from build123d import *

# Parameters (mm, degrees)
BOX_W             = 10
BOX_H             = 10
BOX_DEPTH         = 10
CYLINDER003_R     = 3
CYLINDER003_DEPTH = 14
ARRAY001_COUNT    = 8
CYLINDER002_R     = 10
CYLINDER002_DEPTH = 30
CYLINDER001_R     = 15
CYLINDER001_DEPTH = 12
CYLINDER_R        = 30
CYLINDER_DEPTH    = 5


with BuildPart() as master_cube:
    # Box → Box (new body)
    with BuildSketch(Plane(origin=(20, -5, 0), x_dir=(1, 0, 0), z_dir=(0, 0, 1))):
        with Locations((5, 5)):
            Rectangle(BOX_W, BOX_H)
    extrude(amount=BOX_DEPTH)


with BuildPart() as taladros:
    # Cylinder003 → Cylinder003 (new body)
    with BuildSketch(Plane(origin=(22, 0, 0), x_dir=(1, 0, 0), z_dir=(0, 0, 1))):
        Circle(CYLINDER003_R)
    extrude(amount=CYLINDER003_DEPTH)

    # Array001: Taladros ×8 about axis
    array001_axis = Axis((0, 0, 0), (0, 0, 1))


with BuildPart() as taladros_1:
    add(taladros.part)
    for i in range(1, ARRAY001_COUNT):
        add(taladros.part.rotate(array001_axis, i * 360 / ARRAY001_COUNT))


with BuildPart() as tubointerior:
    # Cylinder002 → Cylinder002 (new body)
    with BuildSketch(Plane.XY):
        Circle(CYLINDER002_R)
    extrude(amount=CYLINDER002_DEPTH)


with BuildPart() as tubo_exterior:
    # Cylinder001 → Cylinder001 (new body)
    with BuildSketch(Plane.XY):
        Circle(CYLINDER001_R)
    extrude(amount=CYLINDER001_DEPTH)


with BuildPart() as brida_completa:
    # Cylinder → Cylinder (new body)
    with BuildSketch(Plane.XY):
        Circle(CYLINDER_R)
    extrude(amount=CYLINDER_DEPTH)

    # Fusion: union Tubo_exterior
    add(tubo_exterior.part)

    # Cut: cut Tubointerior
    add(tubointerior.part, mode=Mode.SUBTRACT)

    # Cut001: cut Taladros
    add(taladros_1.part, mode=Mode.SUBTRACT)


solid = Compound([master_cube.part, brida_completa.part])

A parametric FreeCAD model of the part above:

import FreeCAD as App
import Part
import Sketcher
from FreeCAD import Vector
Q = App.Units.Quantity

doc = App.newDocument("Part")
params = doc.addObject("Spreadsheet::Sheet", "Params")
for row, (alias, value) in enumerate([
    ("sketch1_width", "10 mm"),
    ("pad1_length", "10 mm"),
    ("sketch2_diameter", "6 mm"),
    ("pad2_length", "14 mm"),
    ("sketch3_diameter", "20 mm"),
    ("pad3_length", "30 mm"),
    ("sketch4_diameter", "30 mm"),
    ("pad4_length", "12 mm"),
    ("sketch5_diameter", "60 mm"),
    ("pad5_length", "5 mm"),
], start=1):
    params.set(f"A{row}", alias)
    params.set(f"B{row}", "=" + value)
    params.setAlias(f"B{row}", alias)

body = doc.addObject("PartDesign::Body", "Body")

# Sketch on XY plane
sketch1 = doc.addObject("Sketcher::SketchObject", "Sketch")
body.addObject(sketch1)
sketch1.AttachmentSupport = (doc.XY_Plane, [""])
sketch1.MapMode = "FlatFace"
sketch1.addGeometry([
    Part.LineSegment(Vector(20, 5, 0), Vector(20, -5, 0)),
    Part.LineSegment(Vector(20, -5, 0), Vector(30, -5, 0)),
    Part.LineSegment(Vector(30, -5, 0), Vector(30, 5, 0)),
    Part.LineSegment(Vector(30, 5, 0), Vector(20, 5, 0)),
], False)
sketch1.addConstraint([
    Sketcher.Constraint("Coincident", 0, 2, 1, 1),
    Sketcher.Constraint("Coincident", 1, 2, 2, 1),
    Sketcher.Constraint("Coincident", 2, 2, 3, 1),
    Sketcher.Constraint("Coincident", 3, 2, 0, 1),
    Sketcher.Constraint("Vertical", 0),
    Sketcher.Constraint("Horizontal", 1),
    Sketcher.Constraint("Vertical", 2),
    Sketcher.Constraint("Horizontal", 3),
    Sketcher.Constraint("Equal", 3, 0),
    Sketcher.Constraint("DistanceX", 1, 1, 1, 2, Q("10 mm")),
    Sketcher.Constraint("DistanceX", -1, 1, 0, 2, Q("20 mm")),
    Sketcher.Constraint("DistanceY", 0, 2, -1, 1, Q("5 mm")),
])
sketch1.setExpression("Constraints[9]", "Params.sketch1_width")
pad1 = doc.addObject("PartDesign::Pad", "Pad")
body.addObject(pad1)
pad1.Profile = sketch1
pad1.setExpression("Length", "Params.pad1_length")
body2 = doc.addObject("PartDesign::Body", "Body001")

# Sketch on XY plane
sketch2 = doc.addObject("Sketcher::SketchObject", "Sketch001")
body2.addObject(sketch2)
sketch2.AttachmentSupport = (doc.getObject("XY_Plane001"), [""])
sketch2.MapMode = "FlatFace"
sketch2.addGeometry(Part.Circle(Vector(22, 0, 0), Vector(0, 0, 1), 3), False)
sketch2.addConstraint([
    Sketcher.Constraint("PointOnObject", 0, 3, -1),
    Sketcher.Constraint("Diameter", 0, Q("6 mm")),
    Sketcher.Constraint("DistanceX", -1, 1, 0, 3, Q("22 mm")),
])
sketch2.setExpression("Constraints[1]", "Params.sketch2_diameter")
pad2 = doc.addObject("PartDesign::Pad", "Pad001")
body2.addObject(pad2)
pad2.Profile = sketch2
pad2.setExpression("Length", "Params.pad2_length")
body3 = doc.addObject("PartDesign::Body", "Body002")
body3.AllowCompound = True
doc.recompute()

body3.BaseFeature = body2
doc.recompute()

body4 = doc.addObject("PartDesign::Body", "Body003")
body4.BaseFeature = body2
body4.Placement = App.Placement(Vector(0, 0, 0), App.Rotation(Vector(0, 0, 1), 45))
boolean = doc.addObject("PartDesign::Boolean", "Boolean")
body3.addObject(boolean)
boolean.Type = "Fuse"
boolean.addObjects([body4])
doc.recompute()

body5 = doc.addObject("PartDesign::Body", "Body004")
body5.BaseFeature = body2
body5.Placement = App.Placement(Vector(0, 0, 0), App.Rotation(Vector(0, 0, 1), 90))
boolean2 = doc.addObject("PartDesign::Boolean", "Boolean001")
body3.addObject(boolean2)
boolean2.Type = "Fuse"
boolean2.addObjects([body5])
doc.recompute()

body6 = doc.addObject("PartDesign::Body", "Body005")
body6.BaseFeature = body2
body6.Placement = App.Placement(Vector(0, 0, 0), App.Rotation(Vector(0, 0, 1), 135))
boolean3 = doc.addObject("PartDesign::Boolean", "Boolean002")
body3.addObject(boolean3)
boolean3.Type = "Fuse"
boolean3.addObjects([body6])
doc.recompute()

body7 = doc.addObject("PartDesign::Body", "Body006")
body7.BaseFeature = body2
body7.Placement = App.Placement(Vector(0, 0, 0), App.Rotation(Vector(0, 0, 1), 180))
boolean4 = doc.addObject("PartDesign::Boolean", "Boolean003")
body3.addObject(boolean4)
boolean4.Type = "Fuse"
boolean4.addObjects([body7])
doc.recompute()

body8 = doc.addObject("PartDesign::Body", "Body007")
body8.BaseFeature = body2
body8.Placement = App.Placement(Vector(0, 0, 0), App.Rotation(Vector(0, 0, 1), 225))
boolean5 = doc.addObject("PartDesign::Boolean", "Boolean004")
body3.addObject(boolean5)
boolean5.Type = "Fuse"
boolean5.addObjects([body8])
doc.recompute()

body9 = doc.addObject("PartDesign::Body", "Body008")
body9.BaseFeature = body2
body9.Placement = App.Placement(Vector(0, 0, 0), App.Rotation(Vector(0, 0, 1), 270))
boolean6 = doc.addObject("PartDesign::Boolean", "Boolean005")
body3.addObject(boolean6)
boolean6.Type = "Fuse"
boolean6.addObjects([body9])
doc.recompute()

body2.Placement = App.Placement(Vector(0, 0, 0), App.Rotation(Vector(0, 0, 1), 315))
boolean7 = doc.addObject("PartDesign::Boolean", "Boolean006")
body3.addObject(boolean7)
boolean7.Type = "Fuse"
boolean7.addObjects([body2])
body10 = doc.addObject("PartDesign::Body", "Body009")

# Sketch on XY plane
sketch3 = doc.addObject("Sketcher::SketchObject", "Sketch002")
body10.addObject(sketch3)
sketch3.AttachmentSupport = (doc.getObject("XY_Plane009"), [""])
sketch3.MapMode = "FlatFace"
sketch3.addGeometry(Part.Circle(Vector(0, 0, 0), Vector(0, 0, 1), 10), False)
sketch3.addConstraint([
    Sketcher.Constraint("Coincident", 0, 3, -1, 1),
    Sketcher.Constraint("Diameter", 0, Q("20 mm")),
])
sketch3.setExpression("Constraints[1]", "Params.sketch3_diameter")
pad3 = doc.addObject("PartDesign::Pad", "Pad002")
body10.addObject(pad3)
pad3.Profile = sketch3
pad3.setExpression("Length", "Params.pad3_length")
body11 = doc.addObject("PartDesign::Body", "Body010")

# Sketch on XY plane
sketch4 = doc.addObject("Sketcher::SketchObject", "Sketch003")
body11.addObject(sketch4)
sketch4.AttachmentSupport = (doc.getObject("XY_Plane010"), [""])
sketch4.MapMode = "FlatFace"
sketch4.addGeometry(Part.Circle(Vector(0, 0, 0), Vector(0, 0, 1), 15), False)
sketch4.addConstraint([
    Sketcher.Constraint("Coincident", 0, 3, -1, 1),
    Sketcher.Constraint("Diameter", 0, Q("30 mm")),
])
sketch4.setExpression("Constraints[1]", "Params.sketch4_diameter")
pad4 = doc.addObject("PartDesign::Pad", "Pad003")
body11.addObject(pad4)
pad4.Profile = sketch4
pad4.setExpression("Length", "Params.pad4_length")
body12 = doc.addObject("PartDesign::Body", "Body011")

# Sketch on XY plane
sketch5 = doc.addObject("Sketcher::SketchObject", "Sketch004")
body12.addObject(sketch5)
sketch5.AttachmentSupport = (doc.getObject("XY_Plane011"), [""])
sketch5.MapMode = "FlatFace"
sketch5.addGeometry(Part.Circle(Vector(0, 0, 0), Vector(0, 0, 1), 30), False)
sketch5.addConstraint([
    Sketcher.Constraint("Coincident", 0, 3, -1, 1),
    Sketcher.Constraint("Diameter", 0, Q("60 mm")),
])
sketch5.setExpression("Constraints[1]", "Params.sketch5_diameter")
pad5 = doc.addObject("PartDesign::Pad", "Pad004")
body12.addObject(pad5)
pad5.Profile = sketch5
pad5.setExpression("Length", "Params.pad5_length")
doc.recompute()

boolean8 = doc.addObject("PartDesign::Boolean", "Boolean007")
body12.addObject(boolean8)
boolean8.Type = "Fuse"
boolean8.addObjects([body11])
doc.recompute()

boolean9 = doc.addObject("PartDesign::Boolean", "Boolean008")
body12.addObject(boolean9)
boolean9.Type = "Cut"
boolean9.addObjects([body10])
doc.recompute()

boolean10 = doc.addObject("PartDesign::Boolean", "Boolean009")
body12.addObject(boolean10)
boolean10.Type = "Cut"
boolean10.addObjects([body3])

doc.recompute()
